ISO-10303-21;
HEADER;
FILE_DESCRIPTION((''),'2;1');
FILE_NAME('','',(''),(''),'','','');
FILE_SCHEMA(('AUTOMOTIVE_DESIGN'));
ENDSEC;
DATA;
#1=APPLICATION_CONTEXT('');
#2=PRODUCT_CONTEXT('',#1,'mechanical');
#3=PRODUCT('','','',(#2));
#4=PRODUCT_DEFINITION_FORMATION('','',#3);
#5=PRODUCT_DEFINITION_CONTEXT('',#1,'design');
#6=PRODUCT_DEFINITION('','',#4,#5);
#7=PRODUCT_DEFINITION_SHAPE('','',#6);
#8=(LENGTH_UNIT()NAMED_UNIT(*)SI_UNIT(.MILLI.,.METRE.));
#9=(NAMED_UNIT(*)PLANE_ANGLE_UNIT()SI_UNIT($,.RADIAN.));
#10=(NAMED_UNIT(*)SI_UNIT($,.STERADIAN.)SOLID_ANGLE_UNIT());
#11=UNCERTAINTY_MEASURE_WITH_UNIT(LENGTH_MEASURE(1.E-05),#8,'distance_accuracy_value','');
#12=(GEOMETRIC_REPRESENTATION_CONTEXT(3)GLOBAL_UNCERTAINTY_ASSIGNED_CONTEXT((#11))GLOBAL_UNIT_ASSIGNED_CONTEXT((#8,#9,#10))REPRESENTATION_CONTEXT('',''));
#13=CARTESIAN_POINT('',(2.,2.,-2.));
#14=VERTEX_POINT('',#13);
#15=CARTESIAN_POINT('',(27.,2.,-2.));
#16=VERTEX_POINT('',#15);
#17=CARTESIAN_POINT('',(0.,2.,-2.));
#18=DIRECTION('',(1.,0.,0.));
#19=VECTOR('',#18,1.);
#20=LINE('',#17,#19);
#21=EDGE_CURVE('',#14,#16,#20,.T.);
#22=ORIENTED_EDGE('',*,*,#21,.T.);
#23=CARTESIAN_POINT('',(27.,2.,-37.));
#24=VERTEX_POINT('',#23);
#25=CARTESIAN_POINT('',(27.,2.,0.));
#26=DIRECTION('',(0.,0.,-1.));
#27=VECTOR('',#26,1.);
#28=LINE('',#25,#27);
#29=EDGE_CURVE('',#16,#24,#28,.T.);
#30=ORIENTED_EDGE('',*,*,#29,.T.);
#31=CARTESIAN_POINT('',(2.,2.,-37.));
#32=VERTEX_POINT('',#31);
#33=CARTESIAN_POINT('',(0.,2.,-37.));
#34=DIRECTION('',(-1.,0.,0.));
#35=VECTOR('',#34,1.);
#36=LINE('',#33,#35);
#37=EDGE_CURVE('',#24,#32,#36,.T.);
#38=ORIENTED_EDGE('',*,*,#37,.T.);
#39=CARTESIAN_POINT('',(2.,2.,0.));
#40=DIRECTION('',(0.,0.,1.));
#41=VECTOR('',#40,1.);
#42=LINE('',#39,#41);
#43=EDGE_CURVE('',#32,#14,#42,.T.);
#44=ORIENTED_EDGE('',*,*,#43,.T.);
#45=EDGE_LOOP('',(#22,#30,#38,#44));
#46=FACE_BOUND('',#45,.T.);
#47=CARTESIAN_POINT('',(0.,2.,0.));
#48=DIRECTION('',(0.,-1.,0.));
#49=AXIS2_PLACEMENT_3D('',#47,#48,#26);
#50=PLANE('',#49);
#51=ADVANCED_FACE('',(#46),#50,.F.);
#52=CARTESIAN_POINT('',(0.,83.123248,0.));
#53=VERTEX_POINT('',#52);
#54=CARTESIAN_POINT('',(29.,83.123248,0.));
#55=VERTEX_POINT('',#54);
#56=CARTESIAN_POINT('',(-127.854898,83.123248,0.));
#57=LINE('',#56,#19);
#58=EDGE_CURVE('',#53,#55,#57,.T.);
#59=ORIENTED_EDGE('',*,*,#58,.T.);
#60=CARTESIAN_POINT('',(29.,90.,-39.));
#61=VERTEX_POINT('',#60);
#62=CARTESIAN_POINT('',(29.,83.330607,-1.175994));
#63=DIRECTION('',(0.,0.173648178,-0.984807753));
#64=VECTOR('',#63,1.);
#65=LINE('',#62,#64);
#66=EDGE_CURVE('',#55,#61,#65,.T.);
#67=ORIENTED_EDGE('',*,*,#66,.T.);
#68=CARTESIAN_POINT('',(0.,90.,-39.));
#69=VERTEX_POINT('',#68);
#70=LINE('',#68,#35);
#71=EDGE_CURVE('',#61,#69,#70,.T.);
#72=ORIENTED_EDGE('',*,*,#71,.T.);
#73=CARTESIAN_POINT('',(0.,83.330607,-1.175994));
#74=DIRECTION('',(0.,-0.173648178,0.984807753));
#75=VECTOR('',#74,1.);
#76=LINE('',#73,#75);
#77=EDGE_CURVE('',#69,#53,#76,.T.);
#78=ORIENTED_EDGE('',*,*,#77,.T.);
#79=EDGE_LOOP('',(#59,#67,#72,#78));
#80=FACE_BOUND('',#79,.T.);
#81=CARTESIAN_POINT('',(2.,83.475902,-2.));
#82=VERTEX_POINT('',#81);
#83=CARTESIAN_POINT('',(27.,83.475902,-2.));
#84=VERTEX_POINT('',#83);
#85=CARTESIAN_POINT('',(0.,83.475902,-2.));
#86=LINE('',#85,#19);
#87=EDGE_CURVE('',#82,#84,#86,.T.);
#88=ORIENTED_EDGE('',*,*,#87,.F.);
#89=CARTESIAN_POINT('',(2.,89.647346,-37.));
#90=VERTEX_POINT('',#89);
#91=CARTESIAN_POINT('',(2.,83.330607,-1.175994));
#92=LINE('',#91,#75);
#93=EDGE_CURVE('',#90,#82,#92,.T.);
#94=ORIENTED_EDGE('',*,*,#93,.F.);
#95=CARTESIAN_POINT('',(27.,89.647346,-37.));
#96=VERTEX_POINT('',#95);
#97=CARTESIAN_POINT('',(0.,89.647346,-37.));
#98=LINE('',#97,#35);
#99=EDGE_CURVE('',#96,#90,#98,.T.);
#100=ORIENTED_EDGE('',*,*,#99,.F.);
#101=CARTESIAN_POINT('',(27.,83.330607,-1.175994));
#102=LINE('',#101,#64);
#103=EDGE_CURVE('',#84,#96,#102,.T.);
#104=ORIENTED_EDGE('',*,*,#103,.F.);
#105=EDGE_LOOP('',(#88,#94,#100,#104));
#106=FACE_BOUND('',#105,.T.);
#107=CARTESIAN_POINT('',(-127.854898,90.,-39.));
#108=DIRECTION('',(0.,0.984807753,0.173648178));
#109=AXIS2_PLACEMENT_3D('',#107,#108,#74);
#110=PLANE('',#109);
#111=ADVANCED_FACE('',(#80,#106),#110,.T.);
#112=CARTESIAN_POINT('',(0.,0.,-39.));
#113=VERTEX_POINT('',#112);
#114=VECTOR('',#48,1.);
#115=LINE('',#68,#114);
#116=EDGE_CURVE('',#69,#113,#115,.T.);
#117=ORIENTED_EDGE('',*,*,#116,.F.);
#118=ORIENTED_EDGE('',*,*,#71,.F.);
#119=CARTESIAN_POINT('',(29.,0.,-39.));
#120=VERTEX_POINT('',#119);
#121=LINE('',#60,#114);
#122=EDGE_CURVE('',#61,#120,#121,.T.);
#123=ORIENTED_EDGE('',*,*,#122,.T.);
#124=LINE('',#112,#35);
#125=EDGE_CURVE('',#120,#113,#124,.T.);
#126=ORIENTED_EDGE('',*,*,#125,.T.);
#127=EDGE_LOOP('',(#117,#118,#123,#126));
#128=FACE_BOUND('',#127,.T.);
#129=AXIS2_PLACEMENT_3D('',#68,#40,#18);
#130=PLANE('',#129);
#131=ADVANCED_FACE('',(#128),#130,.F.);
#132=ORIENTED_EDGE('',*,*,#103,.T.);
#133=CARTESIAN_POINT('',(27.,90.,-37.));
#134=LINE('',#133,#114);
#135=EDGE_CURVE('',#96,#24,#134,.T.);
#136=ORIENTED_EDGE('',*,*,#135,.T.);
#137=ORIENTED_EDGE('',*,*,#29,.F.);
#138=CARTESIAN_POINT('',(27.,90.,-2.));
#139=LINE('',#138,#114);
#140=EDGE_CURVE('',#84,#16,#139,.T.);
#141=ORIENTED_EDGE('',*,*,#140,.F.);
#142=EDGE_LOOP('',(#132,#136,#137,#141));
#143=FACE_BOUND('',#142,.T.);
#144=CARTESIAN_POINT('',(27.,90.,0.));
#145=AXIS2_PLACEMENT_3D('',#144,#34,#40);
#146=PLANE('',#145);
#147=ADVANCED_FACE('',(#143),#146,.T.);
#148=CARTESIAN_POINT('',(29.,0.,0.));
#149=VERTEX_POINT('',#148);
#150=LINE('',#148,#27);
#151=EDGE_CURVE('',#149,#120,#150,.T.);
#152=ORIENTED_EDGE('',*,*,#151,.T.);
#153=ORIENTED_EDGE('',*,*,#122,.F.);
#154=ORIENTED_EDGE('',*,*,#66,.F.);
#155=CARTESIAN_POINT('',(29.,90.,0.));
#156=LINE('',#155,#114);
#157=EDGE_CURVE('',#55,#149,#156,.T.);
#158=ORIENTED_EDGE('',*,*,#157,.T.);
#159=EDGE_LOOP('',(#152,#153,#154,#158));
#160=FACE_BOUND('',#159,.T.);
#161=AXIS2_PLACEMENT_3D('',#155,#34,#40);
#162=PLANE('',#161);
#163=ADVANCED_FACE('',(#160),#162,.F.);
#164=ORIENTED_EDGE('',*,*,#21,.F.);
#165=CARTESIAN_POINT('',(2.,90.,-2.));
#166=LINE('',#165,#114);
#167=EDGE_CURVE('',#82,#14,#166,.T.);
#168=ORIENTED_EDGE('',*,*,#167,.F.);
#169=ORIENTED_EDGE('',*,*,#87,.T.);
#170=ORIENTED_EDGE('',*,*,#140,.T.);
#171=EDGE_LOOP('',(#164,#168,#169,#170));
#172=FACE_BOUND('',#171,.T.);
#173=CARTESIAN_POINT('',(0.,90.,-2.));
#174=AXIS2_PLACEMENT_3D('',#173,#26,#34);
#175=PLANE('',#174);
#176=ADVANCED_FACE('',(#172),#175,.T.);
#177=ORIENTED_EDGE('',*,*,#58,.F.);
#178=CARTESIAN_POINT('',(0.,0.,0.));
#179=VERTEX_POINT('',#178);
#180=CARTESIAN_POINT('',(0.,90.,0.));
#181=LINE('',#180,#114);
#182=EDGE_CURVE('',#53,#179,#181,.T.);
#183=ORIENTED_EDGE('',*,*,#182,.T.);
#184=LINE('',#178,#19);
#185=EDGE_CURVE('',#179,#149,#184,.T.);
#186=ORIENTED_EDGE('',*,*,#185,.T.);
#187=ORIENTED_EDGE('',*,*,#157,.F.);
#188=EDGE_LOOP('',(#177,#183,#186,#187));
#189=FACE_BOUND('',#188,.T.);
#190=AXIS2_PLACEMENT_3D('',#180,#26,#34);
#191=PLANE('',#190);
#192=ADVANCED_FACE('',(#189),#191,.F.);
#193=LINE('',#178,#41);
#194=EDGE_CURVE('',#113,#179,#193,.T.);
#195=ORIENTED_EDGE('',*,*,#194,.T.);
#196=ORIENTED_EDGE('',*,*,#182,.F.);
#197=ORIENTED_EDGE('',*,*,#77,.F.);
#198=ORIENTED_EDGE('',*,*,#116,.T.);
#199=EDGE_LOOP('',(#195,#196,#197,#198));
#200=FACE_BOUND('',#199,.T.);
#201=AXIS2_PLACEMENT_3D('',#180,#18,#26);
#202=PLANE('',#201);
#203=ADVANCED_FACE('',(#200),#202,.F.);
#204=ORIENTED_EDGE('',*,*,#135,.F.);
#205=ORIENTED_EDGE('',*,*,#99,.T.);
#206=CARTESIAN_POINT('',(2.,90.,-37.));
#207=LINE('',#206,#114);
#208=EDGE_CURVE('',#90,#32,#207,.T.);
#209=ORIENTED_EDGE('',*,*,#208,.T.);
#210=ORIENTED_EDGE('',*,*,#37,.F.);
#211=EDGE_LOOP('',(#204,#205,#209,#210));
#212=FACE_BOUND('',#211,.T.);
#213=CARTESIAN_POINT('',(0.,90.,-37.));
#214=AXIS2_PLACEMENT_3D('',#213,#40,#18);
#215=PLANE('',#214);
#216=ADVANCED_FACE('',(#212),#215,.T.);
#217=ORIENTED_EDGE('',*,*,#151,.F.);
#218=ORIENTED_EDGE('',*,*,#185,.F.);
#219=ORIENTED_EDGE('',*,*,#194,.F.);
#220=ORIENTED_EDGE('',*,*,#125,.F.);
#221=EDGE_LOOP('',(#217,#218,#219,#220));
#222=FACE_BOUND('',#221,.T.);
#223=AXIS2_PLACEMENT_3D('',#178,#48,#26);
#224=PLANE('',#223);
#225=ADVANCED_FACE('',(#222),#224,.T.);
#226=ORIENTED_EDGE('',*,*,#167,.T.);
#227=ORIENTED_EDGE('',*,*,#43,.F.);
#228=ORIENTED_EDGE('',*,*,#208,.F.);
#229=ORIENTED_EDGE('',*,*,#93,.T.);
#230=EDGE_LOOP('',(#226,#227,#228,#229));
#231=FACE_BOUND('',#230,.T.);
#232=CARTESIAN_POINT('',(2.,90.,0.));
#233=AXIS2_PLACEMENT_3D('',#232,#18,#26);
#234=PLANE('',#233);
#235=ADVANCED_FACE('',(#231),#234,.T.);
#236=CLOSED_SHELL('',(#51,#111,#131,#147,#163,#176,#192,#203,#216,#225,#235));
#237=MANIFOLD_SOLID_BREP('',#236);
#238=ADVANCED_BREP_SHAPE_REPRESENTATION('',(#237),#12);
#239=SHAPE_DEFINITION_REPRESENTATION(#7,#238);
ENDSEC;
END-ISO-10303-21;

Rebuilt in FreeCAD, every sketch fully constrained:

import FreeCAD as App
import Part
import Sketcher

V = App.Vector
Q = App.Units.Quantity


def faces_at(feature, points):
    """Names of the faces that lie closest to the given points."""
    faces = feature.Shape.Faces
    near = lambda p: min(range(len(faces)), key=lambda i: faces[i].distToShape(Part.Vertex(*p))[0])
    return sorted({f"Face{near(p) + 1}" for p in points})


def add_polygon(sketch, points):
    """Adds a closed chain of lines whose ends are joined by coincident constraints."""
    first, n = sketch.GeometryCount, len(points)
    for a, b in zip(points, points[1:] + points[:1]):
        sketch.addGeometry(Part.LineSegment(App.Vector(*a, 0), App.Vector(*b, 0)), False)
    for i in range(n):
        sketch.addConstraint(Sketcher.Constraint("Coincident", first + i, 2, first + (i + 1) % n, 1))

doc = App.newDocument("Part")
body = doc.addObject("PartDesign::Body", "Body")

# Sketch on XZ plane
sketch1 = body.newObject("Sketcher::SketchObject", "Sketch")
sketch1.AttachmentSupport = (doc.getObject("XZ_Plane"), [""])
sketch1.MapMode = "FlatFace"
add_polygon(sketch1, [(0, -39), (0, 0), (29, 0), (29, -39)])  # lines 0-3
sketch1.addConstraint([
    Sketcher.Constraint("Vertical", 0),
    Sketcher.Constraint("Horizontal", 1),
    Sketcher.Constraint("Vertical", 2),
    Sketcher.Constraint("Horizontal", 3),
    Sketcher.Constraint("Coincident", 0, 2, -1, 1),
    Sketcher.Constraint("DistanceX", 1, 1, 1, 2, 29.0),
    Sketcher.Constraint("DistanceY", 0, 1, 0, 2, 39.0),
])
pad1 = body.newObject("PartDesign::Pad", "Pad")
pad1.Profile = sketch1
pad1.Length = 90
pad1.Reversed = True
doc.recompute()

thickness = body.newObject("PartDesign::Thickness", "Thickness")
thickness.Base = (pad1, faces_at(pad1, [(14.5, 90, -19.5)]))
thickness.Value = 2
thickness.Reversed = True
thickness.Join = "Intersection"

# Sketch on YZ plane
sketch2 = body.newObject("Sketcher::SketchObject", "Sketch001")
sketch2.AttachmentSupport = (doc.getObject("YZ_Plane"), [""])
sketch2.MapMode = "FlatFace"
add_polygon(sketch2, [(126, -242), (90, -39), (83, 0), (47, 203), (453, 275), (532, -170)])  # lines 0-5
sketch2.addConstraint([
    Sketcher.Constraint("PointOnObject", 1, 2, -1),
    Sketcher.Constraint("Parallel", 0, 1),
    Sketcher.Constraint("Parallel", 1, 2),
    Sketcher.Constraint("Perpendicular", 2, 3),
    Sketcher.Constraint("Perpendicular", 3, 4),
    Sketcher.Constraint("Perpendicular", 4, 5),
    Sketcher.Constraint("Equal", 0, 2),
    Sketcher.Constraint("Angle", 0, Q("100 deg")),
    Sketcher.Constraint("DistanceX", -1, 1, 0, 2, 90.0),
    Sketcher.Constraint("DistanceY", 0, 2, -1, 1, 39.0),
    Sketcher.Constraint("DistanceX", 2, 2, 3, 2, 406.082311),
    Sketcher.Constraint("DistanceX", 3, 2, 4, 2, 78.48002),
])
pocket1 = body.newObject("PartDesign::Pocket", "Pocket")
pocket1.Profile = sketch2
pocket1.Type = "ThroughAll"
pocket1.Midplane = True

doc.recompute()
